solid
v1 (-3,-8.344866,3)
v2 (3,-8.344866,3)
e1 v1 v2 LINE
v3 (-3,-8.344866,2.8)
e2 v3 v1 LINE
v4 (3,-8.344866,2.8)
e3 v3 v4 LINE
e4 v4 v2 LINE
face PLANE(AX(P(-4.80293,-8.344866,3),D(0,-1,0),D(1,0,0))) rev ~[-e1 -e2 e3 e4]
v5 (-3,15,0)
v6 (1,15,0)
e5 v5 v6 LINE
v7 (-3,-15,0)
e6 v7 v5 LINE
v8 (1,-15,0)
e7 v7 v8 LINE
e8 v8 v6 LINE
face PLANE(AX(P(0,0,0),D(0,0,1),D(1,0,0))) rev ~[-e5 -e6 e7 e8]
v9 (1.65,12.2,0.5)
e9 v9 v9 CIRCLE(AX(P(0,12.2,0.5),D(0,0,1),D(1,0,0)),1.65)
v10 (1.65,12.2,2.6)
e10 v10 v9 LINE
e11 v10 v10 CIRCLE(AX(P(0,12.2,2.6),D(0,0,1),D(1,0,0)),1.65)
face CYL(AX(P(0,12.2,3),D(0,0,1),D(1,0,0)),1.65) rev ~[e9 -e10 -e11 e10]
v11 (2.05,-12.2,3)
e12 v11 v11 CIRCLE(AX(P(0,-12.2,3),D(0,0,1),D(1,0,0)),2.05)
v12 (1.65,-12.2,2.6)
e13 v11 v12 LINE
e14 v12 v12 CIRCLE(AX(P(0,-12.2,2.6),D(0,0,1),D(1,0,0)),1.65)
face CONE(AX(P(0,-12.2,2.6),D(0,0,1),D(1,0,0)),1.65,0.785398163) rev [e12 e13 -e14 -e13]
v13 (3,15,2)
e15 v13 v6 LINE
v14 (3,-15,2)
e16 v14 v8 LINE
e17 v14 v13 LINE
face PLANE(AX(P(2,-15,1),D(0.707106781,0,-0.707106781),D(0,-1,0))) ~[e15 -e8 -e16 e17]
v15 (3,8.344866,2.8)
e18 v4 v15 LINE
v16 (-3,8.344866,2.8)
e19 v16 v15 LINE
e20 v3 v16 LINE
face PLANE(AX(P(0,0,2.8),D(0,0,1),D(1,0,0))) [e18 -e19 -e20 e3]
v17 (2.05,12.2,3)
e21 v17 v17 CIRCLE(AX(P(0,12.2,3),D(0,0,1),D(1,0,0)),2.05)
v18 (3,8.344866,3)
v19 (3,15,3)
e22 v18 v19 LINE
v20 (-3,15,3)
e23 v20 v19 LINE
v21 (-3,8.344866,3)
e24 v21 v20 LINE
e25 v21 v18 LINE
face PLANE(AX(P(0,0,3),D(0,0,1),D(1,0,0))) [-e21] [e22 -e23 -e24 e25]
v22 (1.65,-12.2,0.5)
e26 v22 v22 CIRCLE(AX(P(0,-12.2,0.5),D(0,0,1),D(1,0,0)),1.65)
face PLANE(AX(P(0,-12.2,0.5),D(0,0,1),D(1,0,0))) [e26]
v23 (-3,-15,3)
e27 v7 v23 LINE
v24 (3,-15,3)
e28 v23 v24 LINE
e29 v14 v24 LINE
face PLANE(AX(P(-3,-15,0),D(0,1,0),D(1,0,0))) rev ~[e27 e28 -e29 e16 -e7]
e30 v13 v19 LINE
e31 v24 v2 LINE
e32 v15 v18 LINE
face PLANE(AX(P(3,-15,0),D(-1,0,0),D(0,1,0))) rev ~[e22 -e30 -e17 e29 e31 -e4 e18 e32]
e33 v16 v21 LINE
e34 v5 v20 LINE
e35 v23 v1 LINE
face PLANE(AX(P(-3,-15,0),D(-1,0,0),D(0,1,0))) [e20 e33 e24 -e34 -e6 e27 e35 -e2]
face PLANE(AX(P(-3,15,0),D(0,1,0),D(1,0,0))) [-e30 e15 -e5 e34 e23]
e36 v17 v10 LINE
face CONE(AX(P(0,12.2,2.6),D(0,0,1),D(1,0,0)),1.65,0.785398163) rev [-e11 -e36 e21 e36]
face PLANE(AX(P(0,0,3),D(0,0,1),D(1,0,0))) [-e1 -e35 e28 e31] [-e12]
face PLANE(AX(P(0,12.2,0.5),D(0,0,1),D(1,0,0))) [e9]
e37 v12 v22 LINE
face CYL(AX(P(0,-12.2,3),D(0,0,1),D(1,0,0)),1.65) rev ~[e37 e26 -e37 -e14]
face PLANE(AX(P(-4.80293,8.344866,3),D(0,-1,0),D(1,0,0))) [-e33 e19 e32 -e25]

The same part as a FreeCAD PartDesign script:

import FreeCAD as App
import Part
import Sketcher
from FreeCAD import Vector


def edges_at(feature, points):
    """Names of the edges that pass closest to the given points."""
    edges = feature.Shape.Edges
    near = lambda p: min(range(len(edges)), key=lambda i: edges[i].distToShape(Part.Vertex(*p))[0])
    return sorted({f"Edge{near(p) + 1}" for p in points})


def add_polygon(sketch, points):
    """Adds a closed chain of lines whose ends are joined by coincident constraints."""
    first, n = sketch.GeometryCount, len(points)
    for a, b in zip(points, points[1:] + points[:1]):
        sketch.addGeometry(Part.LineSegment(App.Vector(*a, 0), App.Vector(*b, 0)), False)
    for i in range(n):
        sketch.addConstraint(Sketcher.Constraint("Coincident", first + i, 2, first + (i + 1) % n, 1))

doc = App.newDocument("Part")
params = doc.addObject("Spreadsheet::Sheet", "Params")
for row, (alias, value) in enumerate([
    ("sketch1_width", "6 mm"),
    ("sketch1_height", "30 mm"),
    ("pad1_length", "3 mm"),
    ("sketch2_diameter", "3.3 mm"),
    ("pocket1_length", "2.5 mm"),
    ("chamfer_size", "0.4 mm"),
    ("pocket2_length", "0.2 mm"),
    ("chamfer2_size", "2 mm"),
], start=1):
    params.set(f"A{row}", alias)
    params.set(f"B{row}", "=" + value)
    params.setAlias(f"B{row}", alias)

body = doc.addObject("PartDesign::Body", "Body")

# Sketch on XY plane
sketch1 = doc.addObject("Sketcher::SketchObject", "Sketch")
body.addObject(sketch1)
sketch1.AttachmentSupport = (doc.XY_Plane, [""])
sketch1.MapMode = "FlatFace"
add_polygon(sketch1, [(-3, 15), (-3, -15), (3, -15), (3, 15)])  # lines 0-3
sketch1.addConstraint([
    Sketcher.Constraint("Vertical", 0),
    Sketcher.Constraint("Horizontal", 1),
    Sketcher.Constraint("Vertical", 2),
    Sketcher.Constraint("Horizontal", 3),
    Sketcher.Constraint("Symmetric", 0, 2, 2, 2, -1, 1),
    Sketcher.Constraint("DistanceX", 1, 1, 1, 2, 6.0),
    Sketcher.Constraint("DistanceY", 0, 2, 0, 1, 30.0),
])
sketch1.setExpression("Constraints[9]", "Params.sketch1_width")
sketch1.setExpression("Constraints[10]", "Params.sketch1_height")
pad1 = doc.addObject("PartDesign::Pad", "Pad")
body.addObject(pad1)
pad1.Profile = sketch1
pad1.setExpression("Length", "Params.pad1_length")

# Sketch on XY plane
sketch2 = doc.addObject("Sketcher::SketchObject", "Sketch001")
body.addObject(sketch2)
sketch2.AttachmentSupport = (doc.XY_Plane, [""])
sketch2.MapMode = "FlatFace"
sketch2.AttachmentOffset = App.Placement(Vector(0, 0, 3), App.Rotation())
sketch2.addGeometry([
    Part.Circle(Vector(0, 12.2, 0), Vector(0, 0, 1), 1.6),
    Part.Circle(Vector(0, -12.2, 0), Vector(0, 0, 1), 1.6),
], False)
sketch2.addConstraint([
    Sketcher.Constraint("Equal", 0, 1),
    Sketcher.Constraint("Symmetric", 0, 3, 1, 3, -1, 1),
    Sketcher.Constraint("PointOnObject", 0, 3, -2),
    Sketcher.Constraint("Diameter", 0, 3.3),
    Sketcher.Constraint("DistanceY", -1, 1, 0, 3, 12.2),
])
sketch2.setExpression("Constraints[3]", "Params.sketch2_diameter")
pocket1 = doc.addObject("PartDesign::Pocket", "Pocket")
body.addObject(pocket1)
pocket1.Profile = sketch2
pocket1.setExpression("Length", "Params.pocket1_length")
doc.recompute()

chamfer = doc.addObject("PartDesign::Chamfer", "Chamfer")
body.addObject(chamfer)
chamfer.Base = (pocket1, edges_at(pocket1, [(-1.65, 12.2, 3), (-1.65, -12.2, 3)]))
chamfer.setExpression("Size", "Params.chamfer_size")

# Sketch on XY plane
sketch3 = doc.addObject("Sketcher::SketchObject", "Sketch002")
body.addObject(sketch3)
sketch3.AttachmentSupport = (doc.XY_Plane, [""])
sketch3.MapMode = "FlatFace"
sketch3.AttachmentOffset = App.Placement(Vector(0, 0, 3), App.Rotation())
add_polygon(sketch3, [(-5, 8), (-5, -8), (5, -8), (5, 8)])  # lines 0-3
sketch3.addConstraint([
    Sketcher.Constraint("Vertical", 0),
    Sketcher.Constraint("Horizontal", 1),
    Sketcher.Constraint("Vertical", 2),
    Sketcher.Constraint("Horizontal", 3),
    Sketcher.Constraint("Symmetric", 0, 2, 2, 2, -1, 1),
    Sketcher.Constraint("DistanceX", 1, 1, 1, 2, 9.60586),
    Sketcher.Constraint("DistanceY", 0, 2, 0, 1, 16.689732),
])
pocket2 = doc.addObject("PartDesign::Pocket", "Pocket001")
body.addObject(pocket2)
pocket2.Profile = sketch3
pocket2.setExpression("Length", "Params.pocket2_length")
doc.recompute()

chamfer2 = doc.addObject("PartDesign::Chamfer", "Chamfer001")
body.addObject(chamfer2)
chamfer2.Base = (pocket2, edges_at(pocket2, [(3, 0, 0)]))
chamfer2.setExpression("Size", "Params.chamfer2_size")

doc.recompute()
